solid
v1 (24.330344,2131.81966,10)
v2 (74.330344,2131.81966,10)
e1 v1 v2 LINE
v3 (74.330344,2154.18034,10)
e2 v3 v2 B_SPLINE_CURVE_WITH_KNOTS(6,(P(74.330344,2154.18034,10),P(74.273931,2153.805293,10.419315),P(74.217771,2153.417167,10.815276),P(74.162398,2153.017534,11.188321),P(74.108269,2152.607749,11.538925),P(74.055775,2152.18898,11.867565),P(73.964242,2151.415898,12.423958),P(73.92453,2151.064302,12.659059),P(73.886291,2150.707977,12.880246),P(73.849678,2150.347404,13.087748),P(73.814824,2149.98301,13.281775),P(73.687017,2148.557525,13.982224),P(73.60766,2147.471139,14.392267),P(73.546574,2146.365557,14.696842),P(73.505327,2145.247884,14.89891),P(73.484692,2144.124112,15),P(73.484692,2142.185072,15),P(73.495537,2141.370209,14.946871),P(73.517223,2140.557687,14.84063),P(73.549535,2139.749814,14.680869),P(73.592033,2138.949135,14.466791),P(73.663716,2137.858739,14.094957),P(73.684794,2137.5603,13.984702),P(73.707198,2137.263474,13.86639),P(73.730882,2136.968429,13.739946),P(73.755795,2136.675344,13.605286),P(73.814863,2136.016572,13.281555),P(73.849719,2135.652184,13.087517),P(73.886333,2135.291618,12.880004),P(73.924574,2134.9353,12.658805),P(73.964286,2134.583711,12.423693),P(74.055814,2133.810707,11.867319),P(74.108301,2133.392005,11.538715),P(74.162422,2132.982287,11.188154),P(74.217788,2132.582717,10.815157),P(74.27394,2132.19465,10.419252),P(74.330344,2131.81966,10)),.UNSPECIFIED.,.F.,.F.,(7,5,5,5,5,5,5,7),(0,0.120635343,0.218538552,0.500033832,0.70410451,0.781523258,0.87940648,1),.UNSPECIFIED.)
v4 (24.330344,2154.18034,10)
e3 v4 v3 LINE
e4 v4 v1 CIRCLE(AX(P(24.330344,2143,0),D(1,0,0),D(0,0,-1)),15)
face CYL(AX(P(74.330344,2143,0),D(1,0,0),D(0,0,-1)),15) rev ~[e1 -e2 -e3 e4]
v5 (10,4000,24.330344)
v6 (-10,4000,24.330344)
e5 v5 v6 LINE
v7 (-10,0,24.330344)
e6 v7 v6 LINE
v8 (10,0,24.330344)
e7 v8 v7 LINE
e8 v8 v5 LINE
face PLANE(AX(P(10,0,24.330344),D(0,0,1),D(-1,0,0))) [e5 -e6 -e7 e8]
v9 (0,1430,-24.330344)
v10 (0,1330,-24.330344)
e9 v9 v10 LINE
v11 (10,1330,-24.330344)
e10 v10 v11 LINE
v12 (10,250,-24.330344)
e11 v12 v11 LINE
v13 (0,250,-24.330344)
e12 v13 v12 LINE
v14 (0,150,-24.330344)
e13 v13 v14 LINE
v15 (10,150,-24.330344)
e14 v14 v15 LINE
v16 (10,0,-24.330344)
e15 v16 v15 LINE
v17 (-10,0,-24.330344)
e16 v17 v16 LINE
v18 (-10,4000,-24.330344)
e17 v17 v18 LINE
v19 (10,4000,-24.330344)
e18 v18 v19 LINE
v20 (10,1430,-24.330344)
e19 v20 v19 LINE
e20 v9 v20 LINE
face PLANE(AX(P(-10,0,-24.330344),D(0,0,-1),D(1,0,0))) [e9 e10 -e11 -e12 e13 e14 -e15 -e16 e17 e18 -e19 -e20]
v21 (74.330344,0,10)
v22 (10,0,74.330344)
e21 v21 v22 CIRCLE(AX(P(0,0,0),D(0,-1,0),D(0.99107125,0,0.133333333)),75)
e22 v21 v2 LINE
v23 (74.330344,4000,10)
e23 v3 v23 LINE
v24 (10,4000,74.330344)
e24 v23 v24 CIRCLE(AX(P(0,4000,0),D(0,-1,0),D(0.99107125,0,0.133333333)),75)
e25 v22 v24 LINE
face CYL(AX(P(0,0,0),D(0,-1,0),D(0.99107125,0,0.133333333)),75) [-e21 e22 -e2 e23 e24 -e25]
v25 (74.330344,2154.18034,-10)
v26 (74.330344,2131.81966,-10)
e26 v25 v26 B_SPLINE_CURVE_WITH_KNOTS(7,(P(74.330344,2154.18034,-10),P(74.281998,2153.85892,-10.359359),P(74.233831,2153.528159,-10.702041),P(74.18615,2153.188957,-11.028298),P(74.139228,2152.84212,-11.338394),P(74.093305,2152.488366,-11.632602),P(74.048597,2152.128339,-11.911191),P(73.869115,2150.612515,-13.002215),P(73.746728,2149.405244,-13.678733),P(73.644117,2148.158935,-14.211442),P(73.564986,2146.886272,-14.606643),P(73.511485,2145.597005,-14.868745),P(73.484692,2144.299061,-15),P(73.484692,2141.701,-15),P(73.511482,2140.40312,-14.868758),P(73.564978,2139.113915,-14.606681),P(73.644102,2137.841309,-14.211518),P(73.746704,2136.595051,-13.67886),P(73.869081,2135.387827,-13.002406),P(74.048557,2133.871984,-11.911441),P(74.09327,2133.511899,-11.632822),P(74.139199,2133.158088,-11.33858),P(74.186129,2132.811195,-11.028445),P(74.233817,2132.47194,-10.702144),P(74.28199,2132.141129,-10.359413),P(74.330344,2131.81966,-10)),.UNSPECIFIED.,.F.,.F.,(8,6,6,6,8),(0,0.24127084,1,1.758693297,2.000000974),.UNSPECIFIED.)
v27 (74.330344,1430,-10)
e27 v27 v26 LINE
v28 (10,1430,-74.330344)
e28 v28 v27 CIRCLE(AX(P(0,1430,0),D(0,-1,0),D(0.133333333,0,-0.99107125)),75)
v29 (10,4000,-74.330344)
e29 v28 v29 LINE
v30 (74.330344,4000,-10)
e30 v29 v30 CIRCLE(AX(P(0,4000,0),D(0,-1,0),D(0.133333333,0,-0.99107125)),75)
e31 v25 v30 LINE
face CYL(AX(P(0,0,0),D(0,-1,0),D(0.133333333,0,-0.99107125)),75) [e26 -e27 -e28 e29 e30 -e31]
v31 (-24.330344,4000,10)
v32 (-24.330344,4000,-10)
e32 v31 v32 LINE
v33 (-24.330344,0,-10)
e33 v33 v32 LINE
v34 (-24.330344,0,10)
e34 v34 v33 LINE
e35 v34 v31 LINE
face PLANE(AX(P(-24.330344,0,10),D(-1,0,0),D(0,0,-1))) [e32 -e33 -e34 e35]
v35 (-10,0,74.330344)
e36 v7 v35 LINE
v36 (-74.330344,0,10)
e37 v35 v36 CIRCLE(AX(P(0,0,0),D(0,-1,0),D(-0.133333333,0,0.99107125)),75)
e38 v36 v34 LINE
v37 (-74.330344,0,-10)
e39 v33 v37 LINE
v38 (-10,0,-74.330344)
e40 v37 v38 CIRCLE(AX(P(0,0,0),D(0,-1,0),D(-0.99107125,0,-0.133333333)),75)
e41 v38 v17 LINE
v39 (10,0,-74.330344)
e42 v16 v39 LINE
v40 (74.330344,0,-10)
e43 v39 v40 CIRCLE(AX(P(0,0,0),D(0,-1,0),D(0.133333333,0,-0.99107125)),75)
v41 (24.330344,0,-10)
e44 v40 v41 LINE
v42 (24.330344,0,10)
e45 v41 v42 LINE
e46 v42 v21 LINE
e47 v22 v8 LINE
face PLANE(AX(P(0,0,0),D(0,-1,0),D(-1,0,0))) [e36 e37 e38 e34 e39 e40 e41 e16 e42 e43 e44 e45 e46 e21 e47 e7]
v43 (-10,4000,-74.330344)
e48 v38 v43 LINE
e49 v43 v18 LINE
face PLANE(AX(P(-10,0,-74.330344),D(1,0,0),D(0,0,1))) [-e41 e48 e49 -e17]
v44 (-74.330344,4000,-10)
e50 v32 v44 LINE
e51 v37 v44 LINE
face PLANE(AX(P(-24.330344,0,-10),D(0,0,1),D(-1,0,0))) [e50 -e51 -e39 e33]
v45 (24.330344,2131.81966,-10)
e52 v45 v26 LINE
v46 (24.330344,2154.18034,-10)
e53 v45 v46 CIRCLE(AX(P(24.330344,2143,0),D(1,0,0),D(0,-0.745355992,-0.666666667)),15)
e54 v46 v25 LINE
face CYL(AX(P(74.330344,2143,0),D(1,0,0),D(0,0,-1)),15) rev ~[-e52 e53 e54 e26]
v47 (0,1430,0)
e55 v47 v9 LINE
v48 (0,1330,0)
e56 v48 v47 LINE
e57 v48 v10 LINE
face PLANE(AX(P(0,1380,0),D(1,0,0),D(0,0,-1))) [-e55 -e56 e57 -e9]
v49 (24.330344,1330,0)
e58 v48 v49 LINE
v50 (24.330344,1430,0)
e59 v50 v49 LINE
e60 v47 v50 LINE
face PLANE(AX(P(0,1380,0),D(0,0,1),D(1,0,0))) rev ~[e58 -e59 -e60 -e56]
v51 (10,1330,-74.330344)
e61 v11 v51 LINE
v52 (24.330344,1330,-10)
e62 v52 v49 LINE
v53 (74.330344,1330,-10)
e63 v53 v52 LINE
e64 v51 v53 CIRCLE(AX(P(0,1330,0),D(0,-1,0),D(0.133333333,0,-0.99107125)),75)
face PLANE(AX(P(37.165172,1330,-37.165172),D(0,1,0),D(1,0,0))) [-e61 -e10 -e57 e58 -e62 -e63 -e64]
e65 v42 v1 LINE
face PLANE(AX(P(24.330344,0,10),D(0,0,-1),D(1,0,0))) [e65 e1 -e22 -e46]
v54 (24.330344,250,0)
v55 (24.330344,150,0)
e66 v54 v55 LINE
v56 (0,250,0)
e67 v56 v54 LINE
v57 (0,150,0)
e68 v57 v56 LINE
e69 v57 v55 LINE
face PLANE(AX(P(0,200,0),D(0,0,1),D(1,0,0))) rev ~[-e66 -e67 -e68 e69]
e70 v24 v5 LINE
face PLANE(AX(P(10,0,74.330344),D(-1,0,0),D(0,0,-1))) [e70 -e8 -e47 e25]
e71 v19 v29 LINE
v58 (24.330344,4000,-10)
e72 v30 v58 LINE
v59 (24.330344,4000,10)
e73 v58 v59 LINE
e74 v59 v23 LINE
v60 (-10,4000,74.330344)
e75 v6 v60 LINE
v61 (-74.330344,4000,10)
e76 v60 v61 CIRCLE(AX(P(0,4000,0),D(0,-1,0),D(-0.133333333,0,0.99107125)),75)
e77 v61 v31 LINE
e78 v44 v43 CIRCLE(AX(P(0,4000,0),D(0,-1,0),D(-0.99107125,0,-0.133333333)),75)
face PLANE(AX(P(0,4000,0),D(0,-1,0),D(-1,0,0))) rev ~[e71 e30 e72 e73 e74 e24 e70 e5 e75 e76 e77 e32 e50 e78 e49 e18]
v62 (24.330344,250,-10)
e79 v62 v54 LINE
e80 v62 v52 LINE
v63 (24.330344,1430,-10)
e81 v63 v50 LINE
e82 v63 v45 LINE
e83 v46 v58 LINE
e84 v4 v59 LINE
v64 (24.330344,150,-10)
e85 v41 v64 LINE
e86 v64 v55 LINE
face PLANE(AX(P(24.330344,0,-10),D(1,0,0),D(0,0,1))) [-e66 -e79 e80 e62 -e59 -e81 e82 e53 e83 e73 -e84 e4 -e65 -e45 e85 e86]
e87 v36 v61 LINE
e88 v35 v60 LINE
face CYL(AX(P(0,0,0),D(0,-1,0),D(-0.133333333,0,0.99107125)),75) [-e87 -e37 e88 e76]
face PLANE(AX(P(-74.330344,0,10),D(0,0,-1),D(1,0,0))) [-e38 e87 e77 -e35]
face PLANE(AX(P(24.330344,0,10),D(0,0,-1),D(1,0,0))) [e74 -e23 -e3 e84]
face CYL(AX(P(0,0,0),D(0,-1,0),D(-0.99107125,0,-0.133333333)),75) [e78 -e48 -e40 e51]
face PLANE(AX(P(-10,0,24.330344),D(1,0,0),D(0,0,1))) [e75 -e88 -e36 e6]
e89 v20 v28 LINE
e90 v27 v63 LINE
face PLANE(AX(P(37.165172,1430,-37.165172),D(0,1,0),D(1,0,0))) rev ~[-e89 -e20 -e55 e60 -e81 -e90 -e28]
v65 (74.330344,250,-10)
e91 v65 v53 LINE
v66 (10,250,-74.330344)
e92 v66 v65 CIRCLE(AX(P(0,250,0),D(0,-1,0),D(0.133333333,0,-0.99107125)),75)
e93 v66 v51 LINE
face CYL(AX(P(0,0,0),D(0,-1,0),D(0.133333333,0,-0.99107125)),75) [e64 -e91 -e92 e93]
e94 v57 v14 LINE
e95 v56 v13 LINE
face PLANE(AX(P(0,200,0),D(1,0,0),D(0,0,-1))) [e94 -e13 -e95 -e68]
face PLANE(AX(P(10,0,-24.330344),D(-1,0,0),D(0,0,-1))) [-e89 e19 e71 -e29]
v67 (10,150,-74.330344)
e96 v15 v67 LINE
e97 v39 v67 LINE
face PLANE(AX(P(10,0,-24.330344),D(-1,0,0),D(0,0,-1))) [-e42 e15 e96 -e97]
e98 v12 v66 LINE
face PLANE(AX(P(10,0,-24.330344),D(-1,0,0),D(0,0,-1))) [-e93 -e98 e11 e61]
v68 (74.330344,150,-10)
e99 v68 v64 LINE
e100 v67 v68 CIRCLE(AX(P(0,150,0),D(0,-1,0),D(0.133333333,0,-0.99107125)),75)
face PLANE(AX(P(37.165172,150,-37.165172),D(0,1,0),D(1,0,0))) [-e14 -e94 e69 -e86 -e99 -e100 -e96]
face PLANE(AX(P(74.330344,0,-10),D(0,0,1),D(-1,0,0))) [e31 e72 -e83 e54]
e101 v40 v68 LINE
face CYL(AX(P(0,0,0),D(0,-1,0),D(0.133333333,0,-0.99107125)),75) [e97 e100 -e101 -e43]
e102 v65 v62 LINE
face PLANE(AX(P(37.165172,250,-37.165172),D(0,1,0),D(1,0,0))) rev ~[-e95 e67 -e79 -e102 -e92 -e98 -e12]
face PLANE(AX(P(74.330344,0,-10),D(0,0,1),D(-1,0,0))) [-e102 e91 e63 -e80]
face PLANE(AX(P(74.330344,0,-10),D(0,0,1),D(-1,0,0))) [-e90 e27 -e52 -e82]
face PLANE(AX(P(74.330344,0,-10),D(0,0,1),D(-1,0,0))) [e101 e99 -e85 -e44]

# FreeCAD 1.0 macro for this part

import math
import FreeCAD as App
import Part
import Sketcher

doc = App.newDocument("Part")
body = doc.addObject("PartDesign::Body", "Body")

# Sketch on XZ plane
sketch1 = body.newObject("Sketcher::SketchObject", "Sketch")
sketch1.AttachmentSupport = (doc.getObject("XZ_Plane"), [""])
sketch1.MapMode = "FlatFace"
sketch1.addGeometry([
    Part.LineSegment(App.Vector(-10, -24, 0), App.Vector(-10, -74, 0)),  # 0
    Part.ArcOfCircle(Part.Circle(App.Vector(0, 0, 0), App.Vector(0, 0, 1), 75), math.radians(-172), math.radians(-98)),  # 1
    Part.LineSegment(App.Vector(-74, -10, 0), App.Vector(-24, -10, 0)),  # 2
    Part.LineSegment(App.Vector(-24, -10, 0), App.Vector(-24, 10, 0)),  # 3
    Part.LineSegment(App.Vector(-24, 10, 0), App.Vector(-74, 10, 0)),  # 4
    Part.ArcOfCircle(Part.Circle(App.Vector(0, 0, 0), App.Vector(0, 0, 1), 75), math.radians(98), math.radians(172)),  # 5
    Part.LineSegment(App.Vector(-10, 74, 0), App.Vector(-10, 24, 0)),  # 6
    Part.LineSegment(App.Vector(-10, 24, 0), App.Vector(10, 24, 0)),  # 7
    Part.LineSegment(App.Vector(10, 24, 0), App.Vector(10, 74, 0)),  # 8
    Part.ArcOfCircle(Part.Circle(App.Vector(0, 0, 0), App.Vector(0, 0, 1), 75), math.radians(8), math.radians(82)),  # 9
    Part.LineSegment(App.Vector(74, 10, 0), App.Vector(24, 10, 0)),  # 10
    Part.LineSegment(App.Vector(24, 10, 0), App.Vector(24, -10, 0)),  # 11
    Part.LineSegment(App.Vector(24, -10, 0), App.Vector(74, -10, 0)),  # 12
    Part.ArcOfCircle(Part.Circle(App.Vector(0, 0, 0), App.Vector(0, 0, 1), 75), math.radians(-82), math.radians(-8)),  # 13
    Part.LineSegment(App.Vector(10, -74, 0), App.Vector(10, -24, 0)),  # 14
    Part.LineSegment(App.Vector(10, -24, 0), App.Vector(-10, -24, 0)),  # 15
], False)
sketch1.addConstraint([
    Sketcher.Constraint("Coincident", 0, 2, 1, 2),
    Sketcher.Constraint("Coincident", 1, 1, 2, 1),
    Sketcher.Constraint("Coincident", 2, 2, 3, 1),
    Sketcher.Constraint("Coincident", 3, 2, 4, 1),
    Sketcher.Constraint("Coincident", 4, 2, 5, 2),
    Sketcher.Constraint("Coincident", 5, 1, 6, 1),
    Sketcher.Constraint("Coincident", 6, 2, 7, 1),
    Sketcher.Constraint("Coincident", 7, 2, 8, 1),
    Sketcher.Constraint("Coincident", 8, 2, 9, 2),
    Sketcher.Constraint("Coincident", 9, 1, 10, 1),
    Sketcher.Constraint("Coincident", 10, 2, 11, 1),
    Sketcher.Constraint("Coincident", 11, 2, 12, 1),
    Sketcher.Constraint("Coincident", 12, 2, 13, 2),
    Sketcher.Constraint("Coincident", 13, 1, 14, 1),
    Sketcher.Constraint("Coincident", 14, 2, 15, 1),
    Sketcher.Constraint("Coincident", 15, 2, 0, 1),
    Sketcher.Constraint("Vertical", 0),
    Sketcher.Constraint("Horizontal", 2),
    Sketcher.Constraint("Vertical", 3),
    Sketcher.Constraint("Horizontal", 4),
    Sketcher.Constraint("Vertical", 6),
    Sketcher.Constraint("Horizontal", 7),
    Sketcher.Constraint("Vertical", 8),
    Sketcher.Constraint("Horizontal", 10),
    Sketcher.Constraint("Vertical", 11),
    Sketcher.Constraint("Horizontal", 12),
    Sketcher.Constraint("Vertical", 14),
    Sketcher.Constraint("Horizontal", 15),
    Sketcher.Constraint("Coincident", 1, 3, -1, 1),
    Sketcher.Constraint("Coincident", 5, 3, -1, 1),
    Sketcher.Constraint("Coincident", 9, 3, -1, 1),
    Sketcher.Constraint("Coincident", 13, 3, -1, 1),
    Sketcher.Constraint("Equal", 1, 5),
    Sketcher.Constraint("Equal", 5, 9),
    Sketcher.Constraint("Equal", 9, 13),
    Sketcher.Constraint("Symmetric", 2, 2, 10, 2, -1, 1),
    Sketcher.Constraint("Symmetric", 6, 2, 14, 2, -1, 1),
    Sketcher.Constraint("Horizontal", 5, 1, 8, 2),
    Sketcher.Constraint("Horizontal", 4, 2, 9, 1),
    Sketcher.Constraint("Horizontal", 2, 2, 11, 2),
    Sketcher.Constraint("Horizontal", 0, 2, 13, 1),
    Sketcher.Constraint("Equal", 12, 0),
    Sketcher.Constraint("Equal", 15, 3),
    Sketcher.Constraint("Radius", 1, 75.0),
    Sketcher.Constraint("DistanceX", 2, 1, 2, 2, 50.0),
    Sketcher.Constraint("DistanceX", 7, 1, 7, 2, 20.0),
])
pad1 = body.newObject("PartDesign::Pad", "Pad")
pad1.Profile = sketch1
pad1.Length = 4000
pad1.Reversed = True

# Sketch on XZ plane
sketch2 = body.newObject("Sketcher::SketchObject", "Sketch001")
sketch2.AttachmentSupport = (doc.getObject("XZ_Plane"), [""])
sketch2.MapMode = "FlatFace"
sketch2.AttachmentOffset = App.Placement(App.Vector(0, 0, -200), App.Rotation())
sketch2.addGeometry([
    Part.LineSegment(App.Vector(0, -74, 0), App.Vector(0, 0, 0)),
    Part.LineSegment(App.Vector(0, 0, 0), App.Vector(74, 0, 0)),
    Part.LineSegment(App.Vector(74, 0, 0), App.Vector(74, -74, 0)),
    Part.LineSegment(App.Vector(74, -74, 0), App.Vector(0, -74, 0)),
], False)
sketch2.addConstraint([
    Sketcher.Constraint("Coincident", 0, 2, 1, 1),
    Sketcher.Constraint("Coincident", 1, 2, 2, 1),
    Sketcher.Constraint("Coincident", 2, 2, 3, 1),
    Sketcher.Constraint("Coincident", 3, 2, 0, 1),
    Sketcher.Constraint("Vertical", 0),
    Sketcher.Constraint("Horizontal", 1),
    Sketcher.Constraint("Vertical", 2),
    Sketcher.Constraint("Horizontal", 3),
    Sketcher.Constraint("Coincident", 0, 2, -1, 1),
    Sketcher.Constraint("Equal", 3, 0),
    Sketcher.Constraint("DistanceX", 1, 1, 1, 2, 74.330344),
])
pocket1 = body.newObject("PartDesign::Pocket", "Pocket")
pocket1.Profile = sketch2
pocket1.Length = 100
pocket1.Midplane = True

# Sketch on XZ plane
sketch3 = body.newObject("Sketcher::SketchObject", "Sketch002")
sketch3.AttachmentSupport = (doc.getObject("XZ_Plane"), [""])
sketch3.MapMode = "FlatFace"
sketch3.AttachmentOffset = App.Placement(App.Vector(0, 0, -1380), App.Rotation())
sketch3.addGeometry([
    Part.LineSegment(App.Vector(0, -74, 0), App.Vector(0, 0, 0)),
    Part.LineSegment(App.Vector(0, 0, 0), App.Vector(74, 0, 0)),
    Part.LineSegment(App.Vector(74, 0, 0), App.Vector(74, -74, 0)),
    Part.LineSegment(App.Vector(74, -74, 0), App.Vector(0, -74, 0)),
], False)
sketch3.addConstraint([
    Sketcher.Constraint("Coincident", 0, 2, 1, 1),
    Sketcher.Constraint("Coincident", 1, 2, 2, 1),
    Sketcher.Constraint("Coincident", 2, 2, 3, 1),
    Sketcher.Constraint("Coincident", 3, 2, 0, 1),
    Sketcher.Constraint("Vertical", 0),
    Sketcher.Constraint("Horizontal", 1),
    Sketcher.Constraint("Vertical", 2),
    Sketcher.Constraint("Horizontal", 3),
    Sketcher.Constraint("Coincident", 0, 2, -1, 1),
    Sketcher.Constraint("Equal", 3, 0),
    Sketcher.Constraint("DistanceX", 1, 1, 1, 2, 74.330344),
])
pocket2 = body.newObject("PartDesign::Pocket", "Pocket001")
pocket2.Profile = sketch3
pocket2.Length = 100
pocket2.Midplane = True

# Sketch on YZ plane
sketch4 = body.newObject("Sketcher::SketchObject", "Sketch003")
sketch4.AttachmentSupport = (doc.getObject("YZ_Plane"), [""])
sketch4.MapMode = "FlatFace"
sketch4.AttachmentOffset = App.Placement(App.Vector(0, 0, 74.330344), App.Rotation())
sketch4.addGeometry(Part.Circle(App.Vector(2143, 0, 0), App.Vector(0, 0, 1), 15), False)
sketch4.addConstraint([
    Sketcher.Constraint("PointOnObject", 0, 3, -1),
    Sketcher.Constraint("Diameter", 0, 30.0),
    Sketcher.Constraint("DistanceX", -1, 1, 0, 3, 2143.0),
])
pocket3 = body.newObject("PartDesign::Pocket", "Pocket002")
pocket3.Profile = sketch4
pocket3.Length = 50

doc.recompute()
